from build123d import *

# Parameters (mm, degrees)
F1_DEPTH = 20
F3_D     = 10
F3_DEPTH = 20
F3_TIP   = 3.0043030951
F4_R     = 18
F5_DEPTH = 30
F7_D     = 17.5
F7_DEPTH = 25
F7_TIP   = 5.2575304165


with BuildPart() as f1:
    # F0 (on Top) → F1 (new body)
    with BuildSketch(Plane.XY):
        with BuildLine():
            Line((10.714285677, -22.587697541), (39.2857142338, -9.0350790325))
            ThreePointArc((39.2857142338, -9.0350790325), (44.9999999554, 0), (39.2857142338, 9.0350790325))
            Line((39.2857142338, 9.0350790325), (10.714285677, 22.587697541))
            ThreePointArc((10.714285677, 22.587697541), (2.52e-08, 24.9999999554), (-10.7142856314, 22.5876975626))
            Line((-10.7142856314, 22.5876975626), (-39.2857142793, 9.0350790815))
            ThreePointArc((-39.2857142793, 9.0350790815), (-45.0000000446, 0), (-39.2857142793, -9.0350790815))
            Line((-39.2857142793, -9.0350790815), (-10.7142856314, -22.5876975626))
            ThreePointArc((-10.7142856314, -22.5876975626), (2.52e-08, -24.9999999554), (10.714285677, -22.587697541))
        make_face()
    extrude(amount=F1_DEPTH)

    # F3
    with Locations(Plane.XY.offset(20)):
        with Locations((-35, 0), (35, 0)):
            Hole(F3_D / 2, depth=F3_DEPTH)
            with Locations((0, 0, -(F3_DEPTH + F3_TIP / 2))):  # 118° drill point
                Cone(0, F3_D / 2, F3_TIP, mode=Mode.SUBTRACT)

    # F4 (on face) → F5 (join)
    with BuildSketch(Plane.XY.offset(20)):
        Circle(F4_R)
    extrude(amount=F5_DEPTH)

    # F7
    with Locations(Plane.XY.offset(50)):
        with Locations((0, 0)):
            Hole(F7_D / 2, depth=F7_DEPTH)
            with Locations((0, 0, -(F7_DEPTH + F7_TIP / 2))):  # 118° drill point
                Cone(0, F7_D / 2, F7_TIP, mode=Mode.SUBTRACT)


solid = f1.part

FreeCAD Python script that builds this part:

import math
import FreeCAD as App
import Part
import Sketcher
from FreeCAD import Vector
Q = App.Units.Quantity

doc = App.newDocument("Part")
body = doc.addObject("PartDesign::Body", "Body")

# Sketch on XY plane
sketch1 = body.newObject("Sketcher::SketchObject", "Sketch")
sketch1.AttachmentSupport = (doc.getObject("XY_Plane"), [""])
sketch1.MapMode = "FlatFace"
sketch1.addGeometry([
    Part.LineSegment(Vector(11, -23, 0), Vector(39, -9, 0)),  # 0
    Part.ArcOfCircle(Part.Circle(Vector(35, 0, 0), Vector(0, 0, 1), 10), math.radians(-65), math.radians(65)),  # 1
    Part.LineSegment(Vector(39, 9, 0), Vector(11, 23, 0)),  # 2
    Part.ArcOfCircle(Part.Circle(Vector(0, 0, 0), Vector(0, 0, 1), 25), math.radians(65), math.radians(115)),  # 3
    Part.LineSegment(Vector(-11, 23, 0), Vector(-39, 9, 0)),  # 4
    Part.ArcOfCircle(Part.Circle(Vector(-35, 0, 0), Vector(0, 0, 1), 10), math.radians(115), math.radians(245)),  # 5
    Part.LineSegment(Vector(-39, -9, 0), Vector(-11, -23, 0)),  # 6
    Part.ArcOfCircle(Part.Circle(Vector(0, 0, 0), Vector(0, 0, 1), 25), math.radians(-115), math.radians(-65)),  # 7
], False)
sketch1.addConstraint([
    Sketcher.Constraint("Tangent", 0, 2, 1, 1),
    Sketcher.Constraint("Tangent", 1, 2, 2, 1),
    Sketcher.Constraint("Tangent", 2, 2, 3, 1),
    Sketcher.Constraint("Tangent", 3, 2, 4, 1),
    Sketcher.Constraint("Tangent", 4, 2, 5, 1),
    Sketcher.Constraint("Tangent", 5, 2, 6, 1),
    Sketcher.Constraint("Tangent", 6, 2, 7, 1),
    Sketcher.Constraint("Tangent", 7, 2, 0, 1),
    Sketcher.Constraint("Coincident", 3, 3, -1, 1),
    Sketcher.Constraint("Coincident", 7, 3, -1, 1),
    Sketcher.Constraint("Equal", 1, 5),
    Sketcher.Constraint("Equal", 3, 7),
    Sketcher.Constraint("Symmetric", 1, 3, 5, 3, -1, 1),
    Sketcher.Constraint("PointOnObject", 1, 3, -1),
    Sketcher.Constraint("Radius", 1, Q("10 mm")),
    Sketcher.Constraint("Radius", 3, Q("25 mm")),
    Sketcher.Constraint("DistanceX", -1, 1, 1, 3, Q("35 mm")),
])
pad1 = body.newObject("PartDesign::Pad", "Pad")
pad1.Profile = sketch1
pad1.Length = 20

# Sketch on XY plane
sketch2 = body.newObject("Sketcher::SketchObject", "Sketch001")
sketch2.AttachmentSupport = (doc.getObject("XY_Plane"), [""])
sketch2.MapMode = "FlatFace"
sketch2.AttachmentOffset = App.Placement(Vector(0, 0, 20), App.Rotation())
sketch2.addGeometry([
    Part.Circle(Vector(-35, 0, 0), Vector(0, 0, 1), 5),
    Part.Circle(Vector(35, 0, 0), Vector(0, 0, 1), 5),
], False)
sketch2.addConstraint([
    Sketcher.Constraint("Equal", 0, 1),
    Sketcher.Constraint("Symmetric", 0, 3, 1, 3, -1, 1),
    Sketcher.Constraint("PointOnObject", 0, 3, -1),
    Sketcher.Constraint("Diameter", 0, Q("10 mm")),
    Sketcher.Constraint("DistanceX", 0, 3, -1, 1, Q("35 mm")),
])
doc.recompute()
hole = body.newObject("PartDesign::Hole", "Hole")
hole.Profile = sketch2
hole.ThreadType = "None"
hole.Diameter = 10
hole.DepthType = "Dimension"
hole.Depth = 20
hole.DrillPoint = "Angled"
hole.DrillPointAngle = 118

# Sketch on XY plane
sketch3 = body.newObject("Sketcher::SketchObject", "Sketch002")
sketch3.AttachmentSupport = (doc.getObject("XY_Plane"), [""])
sketch3.MapMode = "FlatFace"
sketch3.AttachmentOffset = App.Placement(Vector(0, 0, 20), App.Rotation())
sketch3.addGeometry(Part.Circle(Vector(0, 0, 0), Vector(0, 0, 1), 18), False)
sketch3.addConstraint([
    Sketcher.Constraint("Coincident", 0, 3, -1, 1),
    Sketcher.Constraint("Diameter", 0, Q("36 mm")),
])
pad2 = body.newObject("PartDesign::Pad", "Pad001")
pad2.Profile = sketch3
pad2.Length = 30

# Sketch on XY plane
sketch4 = body.newObject("Sketcher::SketchObject", "Sketch003")
sketch4.AttachmentSupport = (doc.getObject("XY_Plane"), [""])
sketch4.MapMode = "FlatFace"
sketch4.AttachmentOffset = App.Placement(Vector(0, 0, 50), App.Rotation())
sketch4.addGeometry(Part.Circle(Vector(0, 0, 0), Vector(0, 0, 1), 9), False)
sketch4.addConstraint([
    Sketcher.Constraint("Coincident", 0, 3, -1, 1),
    Sketcher.Constraint("Diameter", 0, Q("17.5 mm")),
])
doc.recompute()
hole2 = body.newObject("PartDesign::Hole", "Hole001")
hole2.Profile = sketch4
hole2.ThreadType = "None"
hole2.Diameter = 17.5
hole2.DepthType = "Dimension"
hole2.Depth = 25
hole2.DrillPoint = "Angled"
hole2.DrillPointAngle = 118

doc.recompute()
